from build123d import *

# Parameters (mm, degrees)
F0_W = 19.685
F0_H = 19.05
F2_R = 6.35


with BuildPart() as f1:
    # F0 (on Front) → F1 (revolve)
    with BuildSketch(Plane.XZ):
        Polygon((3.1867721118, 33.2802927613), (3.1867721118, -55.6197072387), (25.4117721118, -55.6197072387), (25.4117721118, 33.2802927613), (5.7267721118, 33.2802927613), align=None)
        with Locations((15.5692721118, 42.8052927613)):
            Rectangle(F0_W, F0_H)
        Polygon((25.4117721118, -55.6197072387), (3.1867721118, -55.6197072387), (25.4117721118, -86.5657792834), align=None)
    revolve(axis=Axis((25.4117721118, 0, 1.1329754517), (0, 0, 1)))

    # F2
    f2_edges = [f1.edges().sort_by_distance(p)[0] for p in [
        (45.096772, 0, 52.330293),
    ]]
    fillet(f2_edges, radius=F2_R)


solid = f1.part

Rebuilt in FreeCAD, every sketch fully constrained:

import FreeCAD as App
import Part
import Sketcher
Q = App.Units.Quantity


def edges_at(feature, points):
    """Names of the edges that pass closest to the given points."""
    edges = feature.Shape.Edges
    near = lambda p: min(range(len(edges)), key=lambda i: edges[i].distToShape(Part.Vertex(*p))[0])
    return sorted({f"Edge{near(p) + 1}" for p in points})

doc = App.newDocument("Part")
body = doc.addObject("PartDesign::Body", "Body")

# Sketch on XZ plane
sketch1 = body.newObject("Sketcher::SketchObject", "Sketch")
sketch1.AttachmentSupport = (doc.getObject("XZ_Plane"), [""])
sketch1.MapMode = "FlatFace"
sketch1.addGeometry([
    Part.LineSegment(App.Vector(3.186772, 33.280293, 0), App.Vector(3.186772, -55.619707, 0)),  # 0
    Part.LineSegment(App.Vector(3.186772, -55.619707, 0), App.Vector(25.411772, -86.565779, 0)),  # 1
    Part.LineSegment(App.Vector(25.411772, -86.565779, 0), App.Vector(25.411772, 52.330293, 0)),  # 2
    Part.LineSegment(App.Vector(25.411772, 52.330293, 0), App.Vector(5.726772, 52.330293, 0)),  # 3
    Part.LineSegment(App.Vector(5.726772, 52.330293, 0), App.Vector(5.726772, 33.280293, 0)),  # 4
    Part.LineSegment(App.Vector(5.726772, 33.280293, 0), App.Vector(3.186772, 33.280293, 0)),  # 5
], False)
sketch1.addGeometry(Part.LineSegment(App.Vector(25.411772, -86.565779, 0), App.Vector(25.411772, 52.330293, 0)), True)  # axis
sketch1.addConstraint([
    Sketcher.Constraint("Coincident", 0, 2, 1, 1),
    Sketcher.Constraint("Coincident", 1, 2, 2, 1),
    Sketcher.Constraint("Coincident", 2, 2, 3, 1),
    Sketcher.Constraint("Coincident", 3, 2, 4, 1),
    Sketcher.Constraint("Coincident", 4, 2, 5, 1),
    Sketcher.Constraint("Coincident", 5, 2, 0, 1),
    Sketcher.Constraint("Vertical", 0),
    Sketcher.Constraint("Vertical", 2),
    Sketcher.Constraint("Horizontal", 3),
    Sketcher.Constraint("Vertical", 4),
    Sketcher.Constraint("Horizontal", 5),
    Sketcher.Constraint("Vertical", 6),
    Sketcher.Constraint("Coincident", 6, 1, 1, 2),
    Sketcher.Constraint("Horizontal", 3, 2, 6, 2),
    Sketcher.Constraint("DistanceX", 5, 2, 5, 1, Q("0.1 in")),
    Sketcher.Constraint("DistanceY", 0, 2, 0, 1, Q("3.5 in")),
    Sketcher.Constraint("Distance", 1, Q("1.5 in")),
    Sketcher.Constraint("DistanceY", 4, 2, 4, 1, Q("0.75 in")),
    Sketcher.Constraint("DistanceX", 3, 2, 3, 1, Q("0.775 in")),
    Sketcher.Constraint("DistanceY", 1, 2, -1, 1, Q("86.565779 mm")),
    Sketcher.Constraint("DistanceX", -1, 1, 0, 2, Q("3.186772 mm")),
])
revolution = body.newObject("PartDesign::Revolution", "Revolution")
revolution.Profile = sketch1
revolution.ReferenceAxis = (sketch1, ["Axis0"])
revolution.Angle = 360
doc.recompute()

fillet = body.newObject("PartDesign::Fillet", "Fillet")
fillet.Base = (revolution, edges_at(revolution, [(45.097, 0, 52.33)]))
fillet.Radius = Q("0.25 in")

doc.recompute()
